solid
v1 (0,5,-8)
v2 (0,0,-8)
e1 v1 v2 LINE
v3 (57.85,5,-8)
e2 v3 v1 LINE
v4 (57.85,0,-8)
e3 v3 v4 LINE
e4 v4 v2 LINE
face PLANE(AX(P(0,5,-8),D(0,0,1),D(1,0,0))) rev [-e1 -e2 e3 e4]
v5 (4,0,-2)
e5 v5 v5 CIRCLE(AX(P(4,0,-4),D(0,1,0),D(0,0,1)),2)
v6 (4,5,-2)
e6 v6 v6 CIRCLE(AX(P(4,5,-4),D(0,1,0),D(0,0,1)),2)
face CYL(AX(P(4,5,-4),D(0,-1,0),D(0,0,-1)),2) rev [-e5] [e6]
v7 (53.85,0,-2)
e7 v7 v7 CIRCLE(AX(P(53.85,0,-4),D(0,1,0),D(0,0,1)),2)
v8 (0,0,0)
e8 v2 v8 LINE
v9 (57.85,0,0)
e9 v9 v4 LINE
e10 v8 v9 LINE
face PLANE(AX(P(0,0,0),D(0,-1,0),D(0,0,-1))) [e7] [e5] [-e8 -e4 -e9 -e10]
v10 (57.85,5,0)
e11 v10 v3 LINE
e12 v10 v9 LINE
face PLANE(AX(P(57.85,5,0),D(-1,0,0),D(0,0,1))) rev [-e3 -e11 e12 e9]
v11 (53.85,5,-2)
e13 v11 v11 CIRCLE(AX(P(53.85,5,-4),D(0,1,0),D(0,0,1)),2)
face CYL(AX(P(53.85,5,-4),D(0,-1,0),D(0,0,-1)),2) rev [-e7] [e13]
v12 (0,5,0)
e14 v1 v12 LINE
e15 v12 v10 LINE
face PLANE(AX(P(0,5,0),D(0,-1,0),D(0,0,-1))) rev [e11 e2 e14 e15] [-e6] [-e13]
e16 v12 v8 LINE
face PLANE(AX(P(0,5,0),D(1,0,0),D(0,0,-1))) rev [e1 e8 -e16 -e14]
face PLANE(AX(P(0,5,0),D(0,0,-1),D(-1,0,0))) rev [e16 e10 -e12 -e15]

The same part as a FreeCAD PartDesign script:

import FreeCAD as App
import Part
import Sketcher
from FreeCAD import Vector


def add_polygon(sketch, points):
    """Adds a closed chain of lines whose ends are joined by coincident constraints."""
    first, n = sketch.GeometryCount, len(points)
    for a, b in zip(points, points[1:] + points[:1]):
        sketch.addGeometry(Part.LineSegment(App.Vector(*a, 0), App.Vector(*b, 0)), False)
    for i in range(n):
        sketch.addConstraint(Sketcher.Constraint("Coincident", first + i, 2, first + (i + 1) % n, 1))

doc = App.newDocument("Part")
body = doc.addObject("PartDesign::Body", "Body")

# Sketch on XZ plane
sketch1 = body.newObject("Sketcher::SketchObject", "Sketch")
sketch1.AttachmentSupport = (doc.getObject("XZ_Plane"), [""])
sketch1.MapMode = "FlatFace"
add_polygon(sketch1, [(0, -8), (0, 0), (57.9, 0), (57.9, -8)])  # lines 0-3
sketch1.addGeometry(Part.Circle(Vector(4, -4, 0), Vector(0, 0, 1), 2), False)  # 4
sketch1.addGeometry(Part.Circle(Vector(53.9, -4, 0), Vector(0, 0, 1), 2), False)  # 5
sketch1.addConstraint(Sketcher.Constraint("Vertical", 0))
sketch1.addConstraint(Sketcher.Constraint("Horizontal", 1))
sketch1.addConstraint(Sketcher.Constraint("Vertical", 2))
sketch1.addConstraint(Sketcher.Constraint("Horizontal", 3))
sketch1.addConstraint(Sketcher.Constraint("Coincident", 0, 2, -1, 1))
sketch1.addConstraint(Sketcher.Constraint("Equal", 4, 5))
sketch1.addConstraint(Sketcher.Constraint("Horizontal", 4, 3, 5, 3))
sketch1.addConstraint(Sketcher.Constraint("Diameter", 4, 4.0))
sketch1.addConstraint(Sketcher.Constraint("DistanceY", 0, 1, 0, 2, 8.0))
sketch1.addConstraint(Sketcher.Constraint("DistanceX", -1, 1, 4, 3, 4.0))
sketch1.addConstraint(Sketcher.Constraint("DistanceY", 4, 3, -1, 1, 4.0))
sketch1.addConstraint(Sketcher.Constraint("DistanceX", 5, 3, 1, 2, 4.0))
sketch1.addConstraint(Sketcher.Constraint("DistanceX", 1, 1, 1, 2, 57.85))
pad1 = body.newObject("PartDesign::Pad", "Pad")
pad1.Profile = sketch1
pad1.Length = 5
pad1.Reversed = True

doc.recompute()
